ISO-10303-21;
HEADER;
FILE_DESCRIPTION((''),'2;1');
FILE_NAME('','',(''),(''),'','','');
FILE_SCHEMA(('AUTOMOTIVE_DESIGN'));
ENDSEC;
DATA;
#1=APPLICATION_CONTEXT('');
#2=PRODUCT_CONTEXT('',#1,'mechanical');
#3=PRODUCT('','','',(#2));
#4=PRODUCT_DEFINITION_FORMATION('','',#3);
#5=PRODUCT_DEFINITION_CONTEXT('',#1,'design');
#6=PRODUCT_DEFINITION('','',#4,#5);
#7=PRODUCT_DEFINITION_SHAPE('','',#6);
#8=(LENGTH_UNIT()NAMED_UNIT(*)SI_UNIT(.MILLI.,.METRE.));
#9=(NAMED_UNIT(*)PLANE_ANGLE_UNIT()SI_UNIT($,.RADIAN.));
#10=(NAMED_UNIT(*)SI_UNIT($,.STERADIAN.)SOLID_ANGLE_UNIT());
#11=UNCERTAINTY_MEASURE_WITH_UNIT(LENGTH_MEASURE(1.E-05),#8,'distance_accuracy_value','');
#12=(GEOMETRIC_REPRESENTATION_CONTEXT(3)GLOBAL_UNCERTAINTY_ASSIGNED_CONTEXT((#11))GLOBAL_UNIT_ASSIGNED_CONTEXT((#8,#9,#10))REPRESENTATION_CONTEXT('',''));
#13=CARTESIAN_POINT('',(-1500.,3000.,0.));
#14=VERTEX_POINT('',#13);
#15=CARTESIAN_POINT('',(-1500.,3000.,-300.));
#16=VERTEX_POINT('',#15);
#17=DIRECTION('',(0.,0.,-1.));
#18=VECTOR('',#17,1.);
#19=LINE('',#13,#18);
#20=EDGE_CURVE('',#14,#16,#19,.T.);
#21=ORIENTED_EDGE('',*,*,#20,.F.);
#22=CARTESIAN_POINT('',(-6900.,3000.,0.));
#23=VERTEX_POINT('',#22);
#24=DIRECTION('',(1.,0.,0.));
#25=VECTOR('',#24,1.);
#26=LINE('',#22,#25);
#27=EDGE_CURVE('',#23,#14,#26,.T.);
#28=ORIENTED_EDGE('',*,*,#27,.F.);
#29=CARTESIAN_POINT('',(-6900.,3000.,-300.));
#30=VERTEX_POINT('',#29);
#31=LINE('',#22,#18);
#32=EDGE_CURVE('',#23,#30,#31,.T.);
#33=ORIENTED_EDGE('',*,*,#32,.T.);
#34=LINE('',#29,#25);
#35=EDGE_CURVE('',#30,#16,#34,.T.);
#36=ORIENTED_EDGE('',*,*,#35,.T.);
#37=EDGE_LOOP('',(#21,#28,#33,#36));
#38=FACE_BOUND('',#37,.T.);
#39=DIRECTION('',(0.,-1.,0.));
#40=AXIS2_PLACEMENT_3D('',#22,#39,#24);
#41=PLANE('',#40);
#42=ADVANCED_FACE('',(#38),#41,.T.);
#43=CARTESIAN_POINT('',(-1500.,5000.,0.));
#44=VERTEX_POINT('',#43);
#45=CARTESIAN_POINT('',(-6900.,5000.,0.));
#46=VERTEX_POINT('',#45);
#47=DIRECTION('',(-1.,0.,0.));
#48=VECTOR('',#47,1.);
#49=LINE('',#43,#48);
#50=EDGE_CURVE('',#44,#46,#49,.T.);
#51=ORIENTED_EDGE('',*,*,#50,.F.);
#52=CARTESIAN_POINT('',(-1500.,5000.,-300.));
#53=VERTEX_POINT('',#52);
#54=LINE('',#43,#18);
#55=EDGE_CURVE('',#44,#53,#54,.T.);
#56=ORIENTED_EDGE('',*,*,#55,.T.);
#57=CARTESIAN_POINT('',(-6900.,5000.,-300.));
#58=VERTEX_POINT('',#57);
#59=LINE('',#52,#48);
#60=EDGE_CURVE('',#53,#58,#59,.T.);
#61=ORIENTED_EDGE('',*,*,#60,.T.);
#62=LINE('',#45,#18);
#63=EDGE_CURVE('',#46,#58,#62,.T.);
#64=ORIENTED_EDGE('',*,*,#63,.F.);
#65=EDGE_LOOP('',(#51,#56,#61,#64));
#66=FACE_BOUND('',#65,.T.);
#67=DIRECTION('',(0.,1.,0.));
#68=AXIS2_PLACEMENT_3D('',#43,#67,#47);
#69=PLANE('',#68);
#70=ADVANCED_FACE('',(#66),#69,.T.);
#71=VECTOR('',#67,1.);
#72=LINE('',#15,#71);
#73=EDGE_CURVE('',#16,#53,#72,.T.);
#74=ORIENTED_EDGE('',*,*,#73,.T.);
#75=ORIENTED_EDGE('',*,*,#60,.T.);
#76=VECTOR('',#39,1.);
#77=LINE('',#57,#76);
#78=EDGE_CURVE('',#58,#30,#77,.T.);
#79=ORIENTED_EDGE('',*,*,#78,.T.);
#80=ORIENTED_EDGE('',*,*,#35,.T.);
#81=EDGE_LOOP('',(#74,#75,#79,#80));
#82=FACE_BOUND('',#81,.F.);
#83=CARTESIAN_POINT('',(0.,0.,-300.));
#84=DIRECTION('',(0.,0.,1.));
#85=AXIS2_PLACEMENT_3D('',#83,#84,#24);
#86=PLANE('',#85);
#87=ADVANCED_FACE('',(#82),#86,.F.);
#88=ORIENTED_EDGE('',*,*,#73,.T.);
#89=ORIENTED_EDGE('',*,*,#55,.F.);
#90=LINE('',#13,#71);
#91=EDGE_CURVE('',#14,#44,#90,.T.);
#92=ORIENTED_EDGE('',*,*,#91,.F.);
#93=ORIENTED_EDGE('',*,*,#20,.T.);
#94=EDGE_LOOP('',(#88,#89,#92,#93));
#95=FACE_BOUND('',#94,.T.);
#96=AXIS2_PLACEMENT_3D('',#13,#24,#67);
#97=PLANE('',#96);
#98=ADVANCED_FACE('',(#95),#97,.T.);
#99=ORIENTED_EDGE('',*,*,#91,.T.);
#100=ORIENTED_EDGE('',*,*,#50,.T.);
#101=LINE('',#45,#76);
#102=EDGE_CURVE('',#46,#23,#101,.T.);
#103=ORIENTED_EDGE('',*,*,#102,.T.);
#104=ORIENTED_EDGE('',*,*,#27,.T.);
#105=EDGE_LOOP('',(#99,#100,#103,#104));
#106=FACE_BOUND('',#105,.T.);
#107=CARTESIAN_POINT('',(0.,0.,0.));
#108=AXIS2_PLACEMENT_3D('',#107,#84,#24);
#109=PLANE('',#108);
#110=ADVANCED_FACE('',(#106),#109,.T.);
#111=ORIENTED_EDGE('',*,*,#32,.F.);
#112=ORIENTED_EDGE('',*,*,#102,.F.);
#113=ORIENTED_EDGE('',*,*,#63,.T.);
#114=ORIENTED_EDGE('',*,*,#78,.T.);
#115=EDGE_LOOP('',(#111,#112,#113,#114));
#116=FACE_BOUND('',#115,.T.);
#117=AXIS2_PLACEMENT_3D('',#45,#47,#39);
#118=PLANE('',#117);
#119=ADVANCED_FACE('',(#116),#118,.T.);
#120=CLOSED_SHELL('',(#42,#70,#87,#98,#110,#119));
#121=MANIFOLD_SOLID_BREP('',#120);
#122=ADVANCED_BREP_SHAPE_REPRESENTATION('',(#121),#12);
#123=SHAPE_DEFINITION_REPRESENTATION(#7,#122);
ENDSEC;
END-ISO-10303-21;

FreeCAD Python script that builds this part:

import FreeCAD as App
import Part
import Sketcher
from FreeCAD import Vector
Q = App.Units.Quantity


def add_polygon(sketch, points):
    """Adds a closed chain of lines whose ends are joined by coincident constraints."""
    first, n = sketch.GeometryCount, len(points)
    for a, b in zip(points, points[1:] + points[:1]):
        sketch.addGeometry(Part.LineSegment(App.Vector(*a, 0), App.Vector(*b, 0)), False)
    for i in range(n):
        sketch.addConstraint(Sketcher.Constraint("Coincident", first + i, 2, first + (i + 1) % n, 1))

doc = App.newDocument("Part")
body = doc.addObject("PartDesign::Body", "Body")

sketch1 = body.newObject("Sketcher::SketchObject", "Sketch")
sketch1.AttachmentSupport = (doc.getObject("XY_Plane"), [""])
sketch1.MapMode = "FlatFace"
add_polygon(sketch1, [(-6900, 5000), (-6900, 3000), (-1500, 3000), (-1500, 5000)])
sketch1.addConstraint(Sketcher.Constraint("Vertical", 0))
sketch1.addConstraint(Sketcher.Constraint("Horizontal", 1))
sketch1.addConstraint(Sketcher.Constraint("Vertical", 2))
sketch1.addConstraint(Sketcher.Constraint("Horizontal", 3))
sketch1.addConstraint(Sketcher.Constraint("DistanceY", -1, 1, 0, 2, Q("3000 mm")))
sketch1.addConstraint(Sketcher.Constraint("DistanceX", 1, 1, 1, 2, Q("5400 mm")))
sketch1.addConstraint(Sketcher.Constraint("DistanceY", 0, 2, 0, 1, Q("2000 mm")))
sketch1.addConstraint(Sketcher.Constraint("DistanceX", 0, 2, -1, 1, Q("6900 mm")))
pad1 = body.newObject("PartDesign::Pad", "Pad")
pad1.Profile = sketch1
pad1.Length = 300
pad1.Reversed = True

doc.recompute()
